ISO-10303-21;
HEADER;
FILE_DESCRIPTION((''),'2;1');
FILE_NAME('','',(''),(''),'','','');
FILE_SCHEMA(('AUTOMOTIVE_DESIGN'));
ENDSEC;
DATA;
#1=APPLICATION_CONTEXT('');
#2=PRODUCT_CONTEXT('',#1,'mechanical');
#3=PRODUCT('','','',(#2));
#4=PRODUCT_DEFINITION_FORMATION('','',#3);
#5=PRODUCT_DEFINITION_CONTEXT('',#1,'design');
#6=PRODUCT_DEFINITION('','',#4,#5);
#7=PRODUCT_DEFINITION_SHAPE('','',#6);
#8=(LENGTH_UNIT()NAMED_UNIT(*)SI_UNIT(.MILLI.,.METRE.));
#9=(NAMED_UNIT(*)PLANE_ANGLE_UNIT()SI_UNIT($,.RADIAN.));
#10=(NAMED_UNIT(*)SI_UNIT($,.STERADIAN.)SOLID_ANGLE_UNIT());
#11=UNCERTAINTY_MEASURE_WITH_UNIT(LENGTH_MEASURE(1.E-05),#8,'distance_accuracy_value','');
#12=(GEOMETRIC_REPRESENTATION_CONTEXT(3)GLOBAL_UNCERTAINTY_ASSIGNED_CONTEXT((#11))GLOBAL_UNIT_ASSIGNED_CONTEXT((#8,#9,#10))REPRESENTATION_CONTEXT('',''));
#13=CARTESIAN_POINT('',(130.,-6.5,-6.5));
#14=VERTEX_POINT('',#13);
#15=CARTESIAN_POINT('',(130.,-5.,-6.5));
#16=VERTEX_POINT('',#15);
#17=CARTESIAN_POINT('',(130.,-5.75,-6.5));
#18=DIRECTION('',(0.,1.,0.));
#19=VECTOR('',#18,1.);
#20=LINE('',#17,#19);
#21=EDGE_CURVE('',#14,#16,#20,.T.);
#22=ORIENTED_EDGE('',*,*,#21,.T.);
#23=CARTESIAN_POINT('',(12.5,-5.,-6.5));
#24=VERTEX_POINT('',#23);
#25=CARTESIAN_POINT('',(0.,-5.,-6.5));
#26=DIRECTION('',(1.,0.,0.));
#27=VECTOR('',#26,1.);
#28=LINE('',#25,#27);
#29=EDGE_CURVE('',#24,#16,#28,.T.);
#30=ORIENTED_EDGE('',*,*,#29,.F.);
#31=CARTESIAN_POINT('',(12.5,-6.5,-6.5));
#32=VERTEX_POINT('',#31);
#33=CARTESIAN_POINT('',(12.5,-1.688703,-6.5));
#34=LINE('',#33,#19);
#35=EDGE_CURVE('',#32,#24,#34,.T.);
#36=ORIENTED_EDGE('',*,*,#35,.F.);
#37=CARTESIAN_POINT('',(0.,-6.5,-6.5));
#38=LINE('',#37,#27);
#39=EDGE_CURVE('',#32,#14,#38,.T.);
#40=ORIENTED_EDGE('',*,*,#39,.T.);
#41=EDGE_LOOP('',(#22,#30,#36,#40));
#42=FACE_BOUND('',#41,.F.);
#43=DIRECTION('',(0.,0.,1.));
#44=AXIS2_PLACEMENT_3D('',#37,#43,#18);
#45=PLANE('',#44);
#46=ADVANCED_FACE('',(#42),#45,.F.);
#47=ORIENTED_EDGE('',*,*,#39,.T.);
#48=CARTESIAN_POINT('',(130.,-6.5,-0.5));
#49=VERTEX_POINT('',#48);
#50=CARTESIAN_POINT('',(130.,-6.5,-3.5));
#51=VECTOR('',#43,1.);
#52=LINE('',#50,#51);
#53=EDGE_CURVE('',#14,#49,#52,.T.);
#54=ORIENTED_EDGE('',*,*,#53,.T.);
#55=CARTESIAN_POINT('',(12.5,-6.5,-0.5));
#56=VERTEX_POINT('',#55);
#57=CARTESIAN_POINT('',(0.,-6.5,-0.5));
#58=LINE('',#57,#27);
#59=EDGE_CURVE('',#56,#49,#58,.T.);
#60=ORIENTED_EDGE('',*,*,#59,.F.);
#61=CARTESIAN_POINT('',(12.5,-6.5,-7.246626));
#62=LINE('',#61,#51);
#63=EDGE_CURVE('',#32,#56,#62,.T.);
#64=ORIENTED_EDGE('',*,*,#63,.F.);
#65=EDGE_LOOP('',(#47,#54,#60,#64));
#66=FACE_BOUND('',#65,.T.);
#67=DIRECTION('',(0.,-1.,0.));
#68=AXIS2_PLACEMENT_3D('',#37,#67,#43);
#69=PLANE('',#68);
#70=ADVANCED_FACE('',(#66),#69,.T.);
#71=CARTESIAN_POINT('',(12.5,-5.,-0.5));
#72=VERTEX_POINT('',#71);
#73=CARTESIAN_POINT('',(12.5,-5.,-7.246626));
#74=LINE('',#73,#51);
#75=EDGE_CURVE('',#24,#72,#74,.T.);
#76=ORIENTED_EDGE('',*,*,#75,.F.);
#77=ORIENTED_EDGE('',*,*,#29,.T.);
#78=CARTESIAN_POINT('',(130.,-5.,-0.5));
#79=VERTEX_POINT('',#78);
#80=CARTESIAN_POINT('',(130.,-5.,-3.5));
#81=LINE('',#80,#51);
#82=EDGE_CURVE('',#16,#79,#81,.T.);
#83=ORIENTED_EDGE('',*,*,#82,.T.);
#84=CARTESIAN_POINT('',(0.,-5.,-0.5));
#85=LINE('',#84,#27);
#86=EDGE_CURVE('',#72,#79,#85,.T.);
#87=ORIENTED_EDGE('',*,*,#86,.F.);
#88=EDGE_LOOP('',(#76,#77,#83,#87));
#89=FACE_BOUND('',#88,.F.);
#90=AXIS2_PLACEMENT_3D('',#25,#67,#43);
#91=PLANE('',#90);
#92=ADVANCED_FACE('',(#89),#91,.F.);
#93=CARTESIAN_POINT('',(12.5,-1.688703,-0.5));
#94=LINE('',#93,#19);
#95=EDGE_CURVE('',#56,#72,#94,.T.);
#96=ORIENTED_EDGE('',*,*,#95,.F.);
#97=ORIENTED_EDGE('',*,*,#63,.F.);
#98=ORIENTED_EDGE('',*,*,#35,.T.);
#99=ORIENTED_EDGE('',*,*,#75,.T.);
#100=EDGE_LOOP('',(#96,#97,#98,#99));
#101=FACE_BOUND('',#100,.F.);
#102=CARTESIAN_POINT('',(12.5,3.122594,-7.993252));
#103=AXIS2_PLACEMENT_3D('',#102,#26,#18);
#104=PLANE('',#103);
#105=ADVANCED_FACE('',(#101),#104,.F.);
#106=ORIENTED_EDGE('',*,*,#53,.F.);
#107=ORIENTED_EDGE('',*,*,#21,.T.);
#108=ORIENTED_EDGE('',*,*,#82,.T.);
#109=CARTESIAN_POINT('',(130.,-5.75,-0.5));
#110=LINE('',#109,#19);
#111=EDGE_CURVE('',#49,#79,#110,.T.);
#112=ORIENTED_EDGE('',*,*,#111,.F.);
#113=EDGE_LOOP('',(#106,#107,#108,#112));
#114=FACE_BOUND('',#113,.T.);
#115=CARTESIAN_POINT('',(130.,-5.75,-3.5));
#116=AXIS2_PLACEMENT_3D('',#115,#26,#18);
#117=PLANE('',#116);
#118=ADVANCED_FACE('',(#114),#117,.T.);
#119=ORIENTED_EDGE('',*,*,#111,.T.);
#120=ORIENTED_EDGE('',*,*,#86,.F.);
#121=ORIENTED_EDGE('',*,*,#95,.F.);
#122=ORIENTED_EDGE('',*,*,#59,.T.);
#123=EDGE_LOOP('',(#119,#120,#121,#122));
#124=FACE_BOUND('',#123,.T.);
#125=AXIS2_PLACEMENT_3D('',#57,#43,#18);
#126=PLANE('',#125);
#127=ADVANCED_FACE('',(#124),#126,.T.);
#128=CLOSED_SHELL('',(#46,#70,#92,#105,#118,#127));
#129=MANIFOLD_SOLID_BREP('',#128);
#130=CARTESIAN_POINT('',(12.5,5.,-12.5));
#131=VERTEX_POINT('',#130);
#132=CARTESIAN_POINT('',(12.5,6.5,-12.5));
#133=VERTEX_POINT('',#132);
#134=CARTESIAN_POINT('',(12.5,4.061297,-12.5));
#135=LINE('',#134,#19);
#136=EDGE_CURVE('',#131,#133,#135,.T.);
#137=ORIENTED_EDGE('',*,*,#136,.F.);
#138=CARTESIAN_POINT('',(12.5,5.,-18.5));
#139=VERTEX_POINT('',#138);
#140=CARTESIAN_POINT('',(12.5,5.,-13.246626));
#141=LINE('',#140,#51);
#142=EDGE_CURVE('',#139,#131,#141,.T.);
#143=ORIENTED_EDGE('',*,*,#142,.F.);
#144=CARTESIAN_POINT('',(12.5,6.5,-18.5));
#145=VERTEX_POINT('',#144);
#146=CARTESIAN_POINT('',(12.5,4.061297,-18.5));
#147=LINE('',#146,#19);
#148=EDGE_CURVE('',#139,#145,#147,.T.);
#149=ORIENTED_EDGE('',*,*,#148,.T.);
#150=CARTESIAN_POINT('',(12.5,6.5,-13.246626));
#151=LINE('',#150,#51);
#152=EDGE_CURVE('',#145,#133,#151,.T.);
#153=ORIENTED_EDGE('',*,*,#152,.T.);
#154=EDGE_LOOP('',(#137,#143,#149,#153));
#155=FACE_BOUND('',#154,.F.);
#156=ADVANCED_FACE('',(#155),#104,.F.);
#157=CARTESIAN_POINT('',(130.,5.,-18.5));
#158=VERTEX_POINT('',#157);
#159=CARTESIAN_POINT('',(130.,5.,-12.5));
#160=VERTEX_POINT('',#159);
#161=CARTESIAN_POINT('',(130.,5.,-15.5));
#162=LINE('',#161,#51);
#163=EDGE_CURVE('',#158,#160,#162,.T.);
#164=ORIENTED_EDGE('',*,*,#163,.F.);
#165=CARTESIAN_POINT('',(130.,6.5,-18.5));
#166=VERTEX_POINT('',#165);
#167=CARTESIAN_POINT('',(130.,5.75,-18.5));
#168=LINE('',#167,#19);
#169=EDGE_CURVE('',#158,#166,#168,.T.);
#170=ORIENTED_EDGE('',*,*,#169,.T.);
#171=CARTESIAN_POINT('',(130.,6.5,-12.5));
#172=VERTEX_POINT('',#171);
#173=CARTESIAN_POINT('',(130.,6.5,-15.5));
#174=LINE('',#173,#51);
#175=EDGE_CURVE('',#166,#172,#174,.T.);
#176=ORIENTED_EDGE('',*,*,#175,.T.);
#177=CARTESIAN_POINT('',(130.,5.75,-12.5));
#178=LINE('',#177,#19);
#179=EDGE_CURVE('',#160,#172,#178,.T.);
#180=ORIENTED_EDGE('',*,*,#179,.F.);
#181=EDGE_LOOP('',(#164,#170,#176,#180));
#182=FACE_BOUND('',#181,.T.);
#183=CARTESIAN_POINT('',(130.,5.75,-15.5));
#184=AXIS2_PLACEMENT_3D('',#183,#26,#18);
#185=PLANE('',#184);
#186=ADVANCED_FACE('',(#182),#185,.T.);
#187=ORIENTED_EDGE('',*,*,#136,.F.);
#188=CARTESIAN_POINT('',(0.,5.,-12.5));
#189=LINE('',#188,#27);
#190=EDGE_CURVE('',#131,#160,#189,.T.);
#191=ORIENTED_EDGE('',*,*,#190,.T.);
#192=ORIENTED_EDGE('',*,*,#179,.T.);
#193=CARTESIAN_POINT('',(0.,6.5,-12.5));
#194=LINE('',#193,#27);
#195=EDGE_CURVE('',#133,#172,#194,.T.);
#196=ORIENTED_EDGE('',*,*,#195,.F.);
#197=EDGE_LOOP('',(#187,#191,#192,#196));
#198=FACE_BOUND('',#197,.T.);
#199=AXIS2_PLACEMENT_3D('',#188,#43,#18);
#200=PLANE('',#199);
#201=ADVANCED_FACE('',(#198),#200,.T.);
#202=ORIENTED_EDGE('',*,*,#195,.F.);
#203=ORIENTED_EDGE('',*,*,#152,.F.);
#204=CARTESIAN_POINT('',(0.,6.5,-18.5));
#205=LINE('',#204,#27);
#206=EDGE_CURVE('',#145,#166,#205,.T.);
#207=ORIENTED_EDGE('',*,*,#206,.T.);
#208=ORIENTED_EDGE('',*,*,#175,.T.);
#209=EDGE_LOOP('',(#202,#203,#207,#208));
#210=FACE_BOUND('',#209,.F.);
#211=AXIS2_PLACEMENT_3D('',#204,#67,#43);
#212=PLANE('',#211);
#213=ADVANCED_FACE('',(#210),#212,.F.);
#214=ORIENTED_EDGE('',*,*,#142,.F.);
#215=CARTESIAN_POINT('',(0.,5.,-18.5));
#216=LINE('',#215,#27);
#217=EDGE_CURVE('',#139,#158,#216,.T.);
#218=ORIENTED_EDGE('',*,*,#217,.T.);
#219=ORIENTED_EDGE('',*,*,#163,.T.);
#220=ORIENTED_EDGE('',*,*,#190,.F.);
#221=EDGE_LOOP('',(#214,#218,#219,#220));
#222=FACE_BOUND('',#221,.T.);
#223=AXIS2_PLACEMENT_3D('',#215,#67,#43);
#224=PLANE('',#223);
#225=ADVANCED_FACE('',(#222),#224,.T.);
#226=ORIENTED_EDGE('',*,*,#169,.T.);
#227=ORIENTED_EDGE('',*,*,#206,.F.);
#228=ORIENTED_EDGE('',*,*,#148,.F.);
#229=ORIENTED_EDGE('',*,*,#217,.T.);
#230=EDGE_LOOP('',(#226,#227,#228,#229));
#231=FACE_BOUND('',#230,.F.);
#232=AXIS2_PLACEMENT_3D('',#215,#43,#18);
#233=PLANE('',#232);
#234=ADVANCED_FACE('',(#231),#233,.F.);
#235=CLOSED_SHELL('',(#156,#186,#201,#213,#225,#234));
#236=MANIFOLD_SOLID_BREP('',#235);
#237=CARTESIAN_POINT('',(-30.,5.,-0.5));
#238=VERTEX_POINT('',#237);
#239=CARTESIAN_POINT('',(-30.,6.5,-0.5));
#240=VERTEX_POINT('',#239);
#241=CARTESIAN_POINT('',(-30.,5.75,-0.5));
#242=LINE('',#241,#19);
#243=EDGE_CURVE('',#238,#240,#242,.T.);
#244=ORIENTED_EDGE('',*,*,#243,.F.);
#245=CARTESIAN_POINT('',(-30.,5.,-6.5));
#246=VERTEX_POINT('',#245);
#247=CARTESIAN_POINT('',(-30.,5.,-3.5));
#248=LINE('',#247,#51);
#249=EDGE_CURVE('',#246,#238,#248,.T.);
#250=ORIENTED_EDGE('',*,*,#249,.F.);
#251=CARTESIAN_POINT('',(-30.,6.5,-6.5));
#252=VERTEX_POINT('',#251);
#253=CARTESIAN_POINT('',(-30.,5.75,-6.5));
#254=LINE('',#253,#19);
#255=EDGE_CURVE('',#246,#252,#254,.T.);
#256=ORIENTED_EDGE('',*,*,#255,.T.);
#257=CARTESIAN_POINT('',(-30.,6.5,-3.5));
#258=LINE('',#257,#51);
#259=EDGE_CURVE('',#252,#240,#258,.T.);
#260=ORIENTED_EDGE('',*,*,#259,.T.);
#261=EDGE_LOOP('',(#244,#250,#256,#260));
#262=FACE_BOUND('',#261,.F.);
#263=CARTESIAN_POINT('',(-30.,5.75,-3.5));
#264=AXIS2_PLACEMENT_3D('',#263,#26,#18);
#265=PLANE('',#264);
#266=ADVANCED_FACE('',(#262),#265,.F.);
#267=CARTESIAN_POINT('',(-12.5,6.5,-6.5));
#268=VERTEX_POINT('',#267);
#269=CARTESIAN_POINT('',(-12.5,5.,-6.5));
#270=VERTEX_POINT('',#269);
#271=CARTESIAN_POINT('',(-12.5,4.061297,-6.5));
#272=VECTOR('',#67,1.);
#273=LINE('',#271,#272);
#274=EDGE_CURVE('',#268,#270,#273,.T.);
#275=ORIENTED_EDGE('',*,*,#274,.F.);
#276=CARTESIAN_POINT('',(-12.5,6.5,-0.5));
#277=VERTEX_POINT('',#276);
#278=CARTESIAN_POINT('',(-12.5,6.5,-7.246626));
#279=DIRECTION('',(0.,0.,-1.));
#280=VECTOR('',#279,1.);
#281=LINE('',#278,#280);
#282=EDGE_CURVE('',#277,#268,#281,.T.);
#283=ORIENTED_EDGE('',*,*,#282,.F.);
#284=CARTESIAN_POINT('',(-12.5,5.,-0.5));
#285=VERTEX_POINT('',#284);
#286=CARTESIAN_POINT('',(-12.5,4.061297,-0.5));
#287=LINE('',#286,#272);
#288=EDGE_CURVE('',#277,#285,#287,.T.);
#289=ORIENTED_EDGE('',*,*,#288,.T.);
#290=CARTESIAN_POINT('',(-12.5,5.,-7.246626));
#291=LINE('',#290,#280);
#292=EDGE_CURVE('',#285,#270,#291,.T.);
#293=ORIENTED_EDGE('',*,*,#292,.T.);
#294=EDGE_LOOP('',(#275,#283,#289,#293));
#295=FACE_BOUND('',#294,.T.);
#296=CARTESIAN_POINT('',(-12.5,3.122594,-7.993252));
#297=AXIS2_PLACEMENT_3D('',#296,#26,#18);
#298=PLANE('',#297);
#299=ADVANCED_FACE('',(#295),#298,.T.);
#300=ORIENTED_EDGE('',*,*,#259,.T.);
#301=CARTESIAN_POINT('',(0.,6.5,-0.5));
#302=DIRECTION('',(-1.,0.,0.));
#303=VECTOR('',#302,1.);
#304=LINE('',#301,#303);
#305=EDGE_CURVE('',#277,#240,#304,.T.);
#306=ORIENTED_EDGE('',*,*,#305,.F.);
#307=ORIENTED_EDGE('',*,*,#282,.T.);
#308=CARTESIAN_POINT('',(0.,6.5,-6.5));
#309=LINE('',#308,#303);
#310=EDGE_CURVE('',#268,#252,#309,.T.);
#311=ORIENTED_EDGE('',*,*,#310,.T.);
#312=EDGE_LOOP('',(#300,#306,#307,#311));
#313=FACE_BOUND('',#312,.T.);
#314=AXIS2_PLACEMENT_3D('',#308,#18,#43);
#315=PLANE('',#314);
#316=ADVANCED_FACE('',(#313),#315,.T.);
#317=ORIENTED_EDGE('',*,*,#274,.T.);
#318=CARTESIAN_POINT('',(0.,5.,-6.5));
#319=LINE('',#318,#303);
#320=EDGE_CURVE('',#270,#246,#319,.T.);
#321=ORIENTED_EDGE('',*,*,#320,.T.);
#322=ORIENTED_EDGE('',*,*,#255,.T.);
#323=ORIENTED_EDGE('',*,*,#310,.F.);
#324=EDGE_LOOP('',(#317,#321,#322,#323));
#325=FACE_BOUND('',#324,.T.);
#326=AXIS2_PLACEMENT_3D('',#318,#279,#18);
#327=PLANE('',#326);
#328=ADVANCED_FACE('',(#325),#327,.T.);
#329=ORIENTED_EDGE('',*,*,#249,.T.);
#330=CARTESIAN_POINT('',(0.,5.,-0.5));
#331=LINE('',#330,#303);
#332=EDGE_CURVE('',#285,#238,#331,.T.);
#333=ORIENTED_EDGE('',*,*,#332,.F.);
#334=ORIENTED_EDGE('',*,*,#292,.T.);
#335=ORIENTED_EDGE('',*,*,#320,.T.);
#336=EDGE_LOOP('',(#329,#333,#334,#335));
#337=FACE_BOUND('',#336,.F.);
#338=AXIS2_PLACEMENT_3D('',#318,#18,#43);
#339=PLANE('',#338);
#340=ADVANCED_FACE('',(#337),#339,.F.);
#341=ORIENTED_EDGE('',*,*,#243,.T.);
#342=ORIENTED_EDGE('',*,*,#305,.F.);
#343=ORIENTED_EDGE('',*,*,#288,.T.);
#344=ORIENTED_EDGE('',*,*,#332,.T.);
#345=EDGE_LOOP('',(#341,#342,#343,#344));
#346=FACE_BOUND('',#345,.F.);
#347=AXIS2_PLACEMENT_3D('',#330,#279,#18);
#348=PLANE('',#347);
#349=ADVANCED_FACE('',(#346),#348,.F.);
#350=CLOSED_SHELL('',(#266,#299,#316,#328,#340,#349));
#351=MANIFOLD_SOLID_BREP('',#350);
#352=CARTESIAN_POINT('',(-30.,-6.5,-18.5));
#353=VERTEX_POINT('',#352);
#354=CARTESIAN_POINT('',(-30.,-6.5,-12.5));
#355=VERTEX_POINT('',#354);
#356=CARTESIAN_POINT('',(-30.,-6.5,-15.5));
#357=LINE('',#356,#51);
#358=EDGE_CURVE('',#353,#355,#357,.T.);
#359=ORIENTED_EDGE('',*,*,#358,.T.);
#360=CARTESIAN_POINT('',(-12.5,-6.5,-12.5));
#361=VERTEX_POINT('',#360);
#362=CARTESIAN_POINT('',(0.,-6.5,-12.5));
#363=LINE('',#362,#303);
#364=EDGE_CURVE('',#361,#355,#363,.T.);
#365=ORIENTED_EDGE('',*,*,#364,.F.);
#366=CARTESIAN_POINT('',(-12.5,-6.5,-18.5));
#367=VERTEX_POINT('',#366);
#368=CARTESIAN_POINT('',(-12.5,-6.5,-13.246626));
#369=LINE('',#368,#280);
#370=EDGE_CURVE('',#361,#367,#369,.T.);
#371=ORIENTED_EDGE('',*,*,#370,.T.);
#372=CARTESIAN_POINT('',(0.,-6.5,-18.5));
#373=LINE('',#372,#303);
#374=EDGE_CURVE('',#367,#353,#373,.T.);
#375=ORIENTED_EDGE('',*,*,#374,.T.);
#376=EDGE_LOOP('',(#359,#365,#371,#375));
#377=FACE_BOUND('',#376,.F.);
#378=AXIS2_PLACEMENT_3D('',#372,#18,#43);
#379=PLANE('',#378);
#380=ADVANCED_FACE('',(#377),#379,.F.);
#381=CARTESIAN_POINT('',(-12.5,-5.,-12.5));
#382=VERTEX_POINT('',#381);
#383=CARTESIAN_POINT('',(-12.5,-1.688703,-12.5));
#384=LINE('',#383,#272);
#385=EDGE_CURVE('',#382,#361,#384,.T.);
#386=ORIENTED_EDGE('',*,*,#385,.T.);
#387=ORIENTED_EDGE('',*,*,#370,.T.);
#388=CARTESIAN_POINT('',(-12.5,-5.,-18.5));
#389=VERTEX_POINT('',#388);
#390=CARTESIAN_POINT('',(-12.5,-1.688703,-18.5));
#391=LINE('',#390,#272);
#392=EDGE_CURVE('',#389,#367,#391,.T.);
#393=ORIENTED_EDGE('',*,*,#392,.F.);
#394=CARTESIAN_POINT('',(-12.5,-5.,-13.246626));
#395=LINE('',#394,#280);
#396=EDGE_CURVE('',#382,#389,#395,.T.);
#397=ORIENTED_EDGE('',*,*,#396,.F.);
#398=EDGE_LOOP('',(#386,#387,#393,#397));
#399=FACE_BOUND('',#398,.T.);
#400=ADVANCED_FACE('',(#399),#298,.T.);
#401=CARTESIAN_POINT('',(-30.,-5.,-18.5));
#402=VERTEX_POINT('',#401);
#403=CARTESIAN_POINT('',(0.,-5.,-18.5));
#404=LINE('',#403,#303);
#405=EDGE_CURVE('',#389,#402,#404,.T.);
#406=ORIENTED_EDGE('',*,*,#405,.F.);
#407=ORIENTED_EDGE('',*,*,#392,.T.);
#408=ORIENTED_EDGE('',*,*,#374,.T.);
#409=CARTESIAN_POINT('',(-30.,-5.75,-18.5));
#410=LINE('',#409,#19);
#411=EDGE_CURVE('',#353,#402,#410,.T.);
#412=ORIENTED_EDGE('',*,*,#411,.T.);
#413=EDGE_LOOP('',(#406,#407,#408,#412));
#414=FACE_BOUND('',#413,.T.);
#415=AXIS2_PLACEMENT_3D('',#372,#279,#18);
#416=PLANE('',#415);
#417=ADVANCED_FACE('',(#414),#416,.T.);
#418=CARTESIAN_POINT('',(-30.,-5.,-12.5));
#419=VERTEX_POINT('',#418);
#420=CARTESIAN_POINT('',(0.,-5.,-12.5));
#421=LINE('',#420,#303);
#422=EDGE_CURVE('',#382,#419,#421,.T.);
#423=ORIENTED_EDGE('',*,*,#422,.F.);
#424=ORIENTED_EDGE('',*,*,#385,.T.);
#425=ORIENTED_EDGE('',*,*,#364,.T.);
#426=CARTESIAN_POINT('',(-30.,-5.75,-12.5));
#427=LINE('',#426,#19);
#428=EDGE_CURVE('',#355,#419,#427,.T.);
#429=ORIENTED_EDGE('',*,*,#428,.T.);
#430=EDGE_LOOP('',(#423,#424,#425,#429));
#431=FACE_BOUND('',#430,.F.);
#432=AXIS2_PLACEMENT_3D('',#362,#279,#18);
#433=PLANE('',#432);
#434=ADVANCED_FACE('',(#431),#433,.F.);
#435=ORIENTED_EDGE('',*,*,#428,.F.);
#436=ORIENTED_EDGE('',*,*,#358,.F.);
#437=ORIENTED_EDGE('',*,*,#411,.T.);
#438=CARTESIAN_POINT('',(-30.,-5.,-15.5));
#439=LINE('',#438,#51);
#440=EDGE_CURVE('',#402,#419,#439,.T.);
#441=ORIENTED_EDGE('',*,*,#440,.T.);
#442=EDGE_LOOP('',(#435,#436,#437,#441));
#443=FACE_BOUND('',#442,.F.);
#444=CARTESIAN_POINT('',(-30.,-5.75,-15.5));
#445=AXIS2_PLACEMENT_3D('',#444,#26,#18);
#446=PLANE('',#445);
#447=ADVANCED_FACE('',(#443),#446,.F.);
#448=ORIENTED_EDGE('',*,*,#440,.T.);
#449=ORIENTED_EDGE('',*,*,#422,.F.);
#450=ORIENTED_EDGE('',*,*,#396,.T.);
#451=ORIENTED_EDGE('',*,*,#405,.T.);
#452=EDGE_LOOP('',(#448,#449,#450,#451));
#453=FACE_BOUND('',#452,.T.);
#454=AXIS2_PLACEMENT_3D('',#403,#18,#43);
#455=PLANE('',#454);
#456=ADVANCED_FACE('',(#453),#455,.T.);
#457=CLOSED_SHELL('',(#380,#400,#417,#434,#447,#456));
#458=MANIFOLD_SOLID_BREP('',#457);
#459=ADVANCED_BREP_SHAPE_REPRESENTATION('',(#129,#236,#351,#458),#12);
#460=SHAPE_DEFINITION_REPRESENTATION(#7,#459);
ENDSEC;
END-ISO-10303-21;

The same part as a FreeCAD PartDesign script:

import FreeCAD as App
import Part
import Sketcher
from FreeCAD import Vector
Q = App.Units.Quantity


def add_polygon(sketch, points):
    """Adds a closed chain of lines whose ends are joined by coincident constraints."""
    first, n = sketch.GeometryCount, len(points)
    for a, b in zip(points, points[1:] + points[:1]):
        sketch.addGeometry(Part.LineSegment(App.Vector(*a, 0), App.Vector(*b, 0)), False)
    for i in range(n):
        sketch.addConstraint(Sketcher.Constraint("Coincident", first + i, 2, first + (i + 1) % n, 1))

doc = App.newDocument("Part")
params = doc.addObject("Spreadsheet::Sheet", "Params")
for row, (alias, value) in enumerate([
    ("sketch1_height", "6 mm"),
    ("sketch1_width", "1.5 mm"),
    ("pad1_length", "130 mm"),
    ("sketch2_height", "6 mm"),
    ("sketch2_width", "1.5 mm"),
    ("pad2_length", "30 mm"),
    ("pocket1_length", "25 mm"),
], start=1):
    params.set(f"A{row}", alias)
    params.set(f"B{row}", "=" + value)
    params.setAlias(f"B{row}", alias)

body = doc.addObject("PartDesign::Body", "Body")
body.AllowCompound = True

sketch1 = body.newObject("Sketcher::SketchObject", "Sketch")
sketch1.AttachmentSupport = (doc.getObject("YZ_Plane"), [""])
sketch1.MapMode = "FlatFace"
add_polygon(sketch1, [(-6.5, -0.5), (-6.5, -6.5), (-5, -6.5), (-5, -0.5)])
add_polygon(sketch1, [(5, -12.5), (5, -18.5), (6.5, -18.5), (6.5, -12.5)])
sketch1.addConstraint(Sketcher.Constraint("Vertical", 0))
sketch1.addConstraint(Sketcher.Constraint("Horizontal", 1))
sketch1.addConstraint(Sketcher.Constraint("Vertical", 2))
sketch1.addConstraint(Sketcher.Constraint("Horizontal", 3))
sketch1.addConstraint(Sketcher.Constraint("Vertical", 4))
sketch1.addConstraint(Sketcher.Constraint("Horizontal", 5))
sketch1.addConstraint(Sketcher.Constraint("Vertical", 6))
sketch1.addConstraint(Sketcher.Constraint("Horizontal", 7))
sketch1.addConstraint(Sketcher.Constraint("Equal", 3, 5))
sketch1.addConstraint(Sketcher.Constraint("Equal", 2, 4))
sketch1.addConstraint(Sketcher.Constraint("DistanceY", 0, 2, 0, 1, Q("6 mm")))
sketch1.addConstraint(Sketcher.Constraint("DistanceX", 1, 1, 1, 2, Q("1.5 mm")))
sketch1.addConstraint(Sketcher.Constraint("DistanceX", 1, 2, -1, 1, Q("5 mm")))
sketch1.addConstraint(Sketcher.Constraint("DistanceX", -1, 1, 4, 2, Q("5 mm")))
sketch1.addConstraint(Sketcher.Constraint("DistanceY", 4, 2, 1, 2, Q("12 mm")))
sketch1.addConstraint(Sketcher.Constraint("DistanceY", 0, 2, -1, 1, Q("6.5 mm")))
sketch1.setExpression("Constraints[18]", "Params.sketch1_height")
sketch1.setExpression("Constraints[19]", "Params.sketch1_width")
pad1 = body.newObject("PartDesign::Pad", "Pad")
pad1.Profile = sketch1
pad1.setExpression("Length", "Params.pad1_length")

sketch2 = body.newObject("Sketcher::SketchObject", "Sketch001")
sketch2.AttachmentSupport = (doc.getObject("YZ_Plane"), [""])
sketch2.MapMode = "FlatFace"
add_polygon(sketch2, [(5, -0.5), (5, -6.5), (6.5, -6.5), (6.5, -0.5)])
add_polygon(sketch2, [(-6.5, -12.5), (-6.5, -18.5), (-5, -18.5), (-5, -12.5)])
sketch2.addConstraint(Sketcher.Constraint("Vertical", 0))
sketch2.addConstraint(Sketcher.Constraint("Horizontal", 1))
sketch2.addConstraint(Sketcher.Constraint("Vertical", 2))
sketch2.addConstraint(Sketcher.Constraint("Horizontal", 3))
sketch2.addConstraint(Sketcher.Constraint("Vertical", 4))
sketch2.addConstraint(Sketcher.Constraint("Horizontal", 5))
sketch2.addConstraint(Sketcher.Constraint("Vertical", 6))
sketch2.addConstraint(Sketcher.Constraint("Horizontal", 7))
sketch2.addConstraint(Sketcher.Constraint("Equal", 3, 5))
sketch2.addConstraint(Sketcher.Constraint("Equal", 2, 4))
sketch2.addConstraint(Sketcher.Constraint("DistanceY", 0, 2, 0, 1, Q("6 mm")))
sketch2.addConstraint(Sketcher.Constraint("DistanceX", 1, 1, 1, 2, Q("1.5 mm")))
sketch2.addConstraint(Sketcher.Constraint("DistanceX", -1, 1, 0, 2, Q("5 mm")))
sketch2.addConstraint(Sketcher.Constraint("DistanceX", 5, 2, -1, 1, Q("5 mm")))
sketch2.addConstraint(Sketcher.Constraint("DistanceY", 4, 2, 0, 2, Q("12 mm")))
sketch2.addConstraint(Sketcher.Constraint("DistanceY", 0, 2, -1, 1, Q("6.5 mm")))
sketch2.setExpression("Constraints[18]", "Params.sketch2_height")
sketch2.setExpression("Constraints[19]", "Params.sketch2_width")
pad2 = body.newObject("PartDesign::Pad", "Pad001")
pad2.Profile = sketch2
pad2.setExpression("Length", "Params.pad2_length")
pad2.Reversed = True

sketch3 = body.newObject("Sketcher::SketchObject", "Sketch002")
sketch3.AttachmentSupport = (doc.getObject("YZ_Plane"), [""])
sketch3.MapMode = "FlatFace"
add_polygon(sketch3, [(-14.60531, 8.732185), (-14.60531, -24.718689), (20.850497, -24.718689), (20.850497, 8.732185)])
sketch3.addConstraint(Sketcher.Constraint("Vertical", 0))
sketch3.addConstraint(Sketcher.Constraint("Horizontal", 1))
sketch3.addConstraint(Sketcher.Constraint("Vertical", 2))
sketch3.addConstraint(Sketcher.Constraint("Horizontal", 3))
sketch3.addConstraint(Sketcher.Constraint("DistanceX", 1, 1, 1, 2, Q("35.455807 mm")))
sketch3.addConstraint(Sketcher.Constraint("DistanceY", 0, 2, 0, 1, Q("33.450874 mm")))
sketch3.addConstraint(Sketcher.Constraint("DistanceX", 0, 2, -1, 1, Q("14.60531 mm")))
sketch3.addConstraint(Sketcher.Constraint("DistanceY", 0, 2, -1, 1, Q("24.718689 mm")))
pocket1 = body.newObject("PartDesign::Pocket", "Pocket")
pocket1.Profile = sketch3
pocket1.setExpression("Length", "Params.pocket1_length")
pocket1.Midplane = True

doc.recompute()
